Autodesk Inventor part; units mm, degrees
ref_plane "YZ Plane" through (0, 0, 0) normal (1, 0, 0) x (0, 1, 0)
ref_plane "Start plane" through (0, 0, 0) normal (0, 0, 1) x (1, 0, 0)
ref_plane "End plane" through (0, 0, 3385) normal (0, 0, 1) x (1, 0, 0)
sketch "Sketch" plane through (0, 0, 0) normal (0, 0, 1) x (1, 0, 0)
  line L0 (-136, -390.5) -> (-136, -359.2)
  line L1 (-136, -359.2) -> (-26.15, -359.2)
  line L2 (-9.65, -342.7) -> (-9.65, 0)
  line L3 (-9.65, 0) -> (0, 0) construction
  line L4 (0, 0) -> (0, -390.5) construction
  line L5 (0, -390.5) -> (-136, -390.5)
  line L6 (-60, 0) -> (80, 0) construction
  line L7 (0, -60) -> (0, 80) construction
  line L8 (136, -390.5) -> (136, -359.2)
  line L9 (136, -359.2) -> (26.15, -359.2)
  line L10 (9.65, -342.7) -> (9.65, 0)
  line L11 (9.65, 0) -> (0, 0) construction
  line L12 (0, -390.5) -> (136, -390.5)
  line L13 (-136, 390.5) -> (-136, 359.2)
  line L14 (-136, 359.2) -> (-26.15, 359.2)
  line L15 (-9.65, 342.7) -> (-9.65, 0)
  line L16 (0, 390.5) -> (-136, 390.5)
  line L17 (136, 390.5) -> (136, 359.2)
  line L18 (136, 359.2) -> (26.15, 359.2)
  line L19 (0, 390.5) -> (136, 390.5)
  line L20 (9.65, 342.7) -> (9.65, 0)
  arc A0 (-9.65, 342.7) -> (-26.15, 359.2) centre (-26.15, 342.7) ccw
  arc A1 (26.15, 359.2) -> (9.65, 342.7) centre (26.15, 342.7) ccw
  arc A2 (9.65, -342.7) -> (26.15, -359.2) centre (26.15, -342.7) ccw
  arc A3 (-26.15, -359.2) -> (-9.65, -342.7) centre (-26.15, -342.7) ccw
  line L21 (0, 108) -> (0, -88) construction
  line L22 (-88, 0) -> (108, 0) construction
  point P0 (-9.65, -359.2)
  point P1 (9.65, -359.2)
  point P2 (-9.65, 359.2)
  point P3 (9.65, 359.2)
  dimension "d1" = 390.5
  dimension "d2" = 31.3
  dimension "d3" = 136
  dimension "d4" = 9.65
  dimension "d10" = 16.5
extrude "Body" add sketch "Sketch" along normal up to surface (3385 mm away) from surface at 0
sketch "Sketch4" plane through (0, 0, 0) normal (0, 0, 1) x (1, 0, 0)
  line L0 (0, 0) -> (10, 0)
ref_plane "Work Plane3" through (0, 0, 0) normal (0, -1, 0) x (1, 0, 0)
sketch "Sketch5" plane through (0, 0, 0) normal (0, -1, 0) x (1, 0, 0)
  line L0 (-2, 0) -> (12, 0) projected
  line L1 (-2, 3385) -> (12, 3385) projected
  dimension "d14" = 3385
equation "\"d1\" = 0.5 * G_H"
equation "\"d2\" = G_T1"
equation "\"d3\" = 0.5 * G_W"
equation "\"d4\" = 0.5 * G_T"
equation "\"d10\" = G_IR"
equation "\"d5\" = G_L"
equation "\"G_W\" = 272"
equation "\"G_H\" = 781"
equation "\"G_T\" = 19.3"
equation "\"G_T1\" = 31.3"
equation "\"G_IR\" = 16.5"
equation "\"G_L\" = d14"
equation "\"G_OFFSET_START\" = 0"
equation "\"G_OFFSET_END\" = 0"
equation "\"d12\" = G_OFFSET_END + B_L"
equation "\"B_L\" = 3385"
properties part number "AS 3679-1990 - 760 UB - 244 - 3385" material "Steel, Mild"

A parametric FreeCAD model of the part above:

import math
import FreeCAD as App
import Part
import Sketcher
from FreeCAD import Vector

doc = App.newDocument("Part")
body = doc.addObject("PartDesign::Body", "Body")

# Sketch on XY plane
sketch1 = body.newObject("Sketcher::SketchObject", "Sketch")
sketch1.AttachmentSupport = (doc.getObject("XY_Plane"), [""])
sketch1.MapMode = "FlatFace"
sketch1.addGeometry([
    Part.LineSegment(Vector(-136, -359, 0), Vector(-136, -390, 0)),  # 0
    Part.LineSegment(Vector(-136, -390, 0), Vector(136, -390, 0)),  # 1
    Part.LineSegment(Vector(136, -390, 0), Vector(136, -359, 0)),  # 2
    Part.LineSegment(Vector(136, -359, 0), Vector(26, -359, 0)),  # 3
    Part.ArcOfCircle(Part.Circle(Vector(26, -343, 0), Vector(0, 0, 1), 16), math.radians(180), math.radians(270)),  # 4
    Part.LineSegment(Vector(10, -343, 0), Vector(10, 343, 0)),  # 5
    Part.ArcOfCircle(Part.Circle(Vector(26, 343, 0), Vector(0, 0, 1), 16), math.radians(90), math.radians(180)),  # 6
    Part.LineSegment(Vector(26, 359, 0), Vector(136, 359, 0)),  # 7
    Part.LineSegment(Vector(136, 359, 0), Vector(136, 390, 0)),  # 8
    Part.LineSegment(Vector(136, 390, 0), Vector(-136, 390, 0)),  # 9
    Part.LineSegment(Vector(-136, 390, 0), Vector(-136, 359, 0)),  # 10
    Part.LineSegment(Vector(-136, 359, 0), Vector(-26, 359, 0)),  # 11
    Part.ArcOfCircle(Part.Circle(Vector(-26, 343, 0), Vector(0, 0, 1), 16), math.radians(0), math.radians(90)),  # 12
    Part.LineSegment(Vector(-10, 343, 0), Vector(-10, -343, 0)),  # 13
    Part.ArcOfCircle(Part.Circle(Vector(-26, -343, 0), Vector(0, 0, 1), 16), math.radians(-90), math.radians(0)),  # 14
    Part.LineSegment(Vector(-26, -359, 0), Vector(-136, -359, 0)),  # 15
], False)
sketch1.addConstraint([
    Sketcher.Constraint("Coincident", 0, 2, 1, 1),
    Sketcher.Constraint("Coincident", 1, 2, 2, 1),
    Sketcher.Constraint("Coincident", 2, 2, 3, 1),
    Sketcher.Constraint("Tangent", 3, 2, 4, 2),
    Sketcher.Constraint("Tangent", 4, 1, 5, 1),
    Sketcher.Constraint("Tangent", 5, 2, 6, 2),
    Sketcher.Constraint("Tangent", 6, 1, 7, 1),
    Sketcher.Constraint("Coincident", 7, 2, 8, 1),
    Sketcher.Constraint("Coincident", 8, 2, 9, 1),
    Sketcher.Constraint("Coincident", 9, 2, 10, 1),
    Sketcher.Constraint("Coincident", 10, 2, 11, 1),
    Sketcher.Constraint("Tangent", 11, 2, 12, 2),
    Sketcher.Constraint("Tangent", 12, 1, 13, 1),
    Sketcher.Constraint("Tangent", 13, 2, 14, 2),
    Sketcher.Constraint("Tangent", 14, 1, 15, 1),
    Sketcher.Constraint("Coincident", 15, 2, 0, 1),
    Sketcher.Constraint("Vertical", 0),
    Sketcher.Constraint("Horizontal", 1),
    Sketcher.Constraint("Vertical", 2),
    Sketcher.Constraint("Horizontal", 3),
    Sketcher.Constraint("Vertical", 5),
    Sketcher.Constraint("Horizontal", 7),
    Sketcher.Constraint("Vertical", 8),
    Sketcher.Constraint("Horizontal", 9),
    Sketcher.Constraint("Vertical", 10),
    Sketcher.Constraint("Horizontal", 11),
    Sketcher.Constraint("Vertical", 13),
    Sketcher.Constraint("Horizontal", 15),
    Sketcher.Constraint("Equal", 4, 6),
    Sketcher.Constraint("Equal", 6, 12),
    Sketcher.Constraint("Equal", 12, 14),
    Sketcher.Constraint("Symmetric", 4, 3, 12, 3, -1, 1),
    Sketcher.Constraint("Symmetric", 0, 2, 8, 2, -1, 1),
    Sketcher.Constraint("Symmetric", 7, 2, 10, 2, -2),
    Sketcher.Constraint("Symmetric", 2, 2, 15, 2, -2),
    Sketcher.Constraint("Radius", 4, 16.5),
    Sketcher.Constraint("DistanceY", 0, 2, 0, 1, 31.3),
    Sketcher.Constraint("DistanceX", 0, 2, -1, 1, 136.0),
    Sketcher.Constraint("DistanceY", 0, 2, -1, 1, 390.5),
    Sketcher.Constraint("DistanceX", -1, 1, 4, 1, 9.65),
])
pad1 = body.newObject("PartDesign::Pad", "Pad")
pad1.Profile = sketch1
pad1.Length = 3385

doc.recompute()
